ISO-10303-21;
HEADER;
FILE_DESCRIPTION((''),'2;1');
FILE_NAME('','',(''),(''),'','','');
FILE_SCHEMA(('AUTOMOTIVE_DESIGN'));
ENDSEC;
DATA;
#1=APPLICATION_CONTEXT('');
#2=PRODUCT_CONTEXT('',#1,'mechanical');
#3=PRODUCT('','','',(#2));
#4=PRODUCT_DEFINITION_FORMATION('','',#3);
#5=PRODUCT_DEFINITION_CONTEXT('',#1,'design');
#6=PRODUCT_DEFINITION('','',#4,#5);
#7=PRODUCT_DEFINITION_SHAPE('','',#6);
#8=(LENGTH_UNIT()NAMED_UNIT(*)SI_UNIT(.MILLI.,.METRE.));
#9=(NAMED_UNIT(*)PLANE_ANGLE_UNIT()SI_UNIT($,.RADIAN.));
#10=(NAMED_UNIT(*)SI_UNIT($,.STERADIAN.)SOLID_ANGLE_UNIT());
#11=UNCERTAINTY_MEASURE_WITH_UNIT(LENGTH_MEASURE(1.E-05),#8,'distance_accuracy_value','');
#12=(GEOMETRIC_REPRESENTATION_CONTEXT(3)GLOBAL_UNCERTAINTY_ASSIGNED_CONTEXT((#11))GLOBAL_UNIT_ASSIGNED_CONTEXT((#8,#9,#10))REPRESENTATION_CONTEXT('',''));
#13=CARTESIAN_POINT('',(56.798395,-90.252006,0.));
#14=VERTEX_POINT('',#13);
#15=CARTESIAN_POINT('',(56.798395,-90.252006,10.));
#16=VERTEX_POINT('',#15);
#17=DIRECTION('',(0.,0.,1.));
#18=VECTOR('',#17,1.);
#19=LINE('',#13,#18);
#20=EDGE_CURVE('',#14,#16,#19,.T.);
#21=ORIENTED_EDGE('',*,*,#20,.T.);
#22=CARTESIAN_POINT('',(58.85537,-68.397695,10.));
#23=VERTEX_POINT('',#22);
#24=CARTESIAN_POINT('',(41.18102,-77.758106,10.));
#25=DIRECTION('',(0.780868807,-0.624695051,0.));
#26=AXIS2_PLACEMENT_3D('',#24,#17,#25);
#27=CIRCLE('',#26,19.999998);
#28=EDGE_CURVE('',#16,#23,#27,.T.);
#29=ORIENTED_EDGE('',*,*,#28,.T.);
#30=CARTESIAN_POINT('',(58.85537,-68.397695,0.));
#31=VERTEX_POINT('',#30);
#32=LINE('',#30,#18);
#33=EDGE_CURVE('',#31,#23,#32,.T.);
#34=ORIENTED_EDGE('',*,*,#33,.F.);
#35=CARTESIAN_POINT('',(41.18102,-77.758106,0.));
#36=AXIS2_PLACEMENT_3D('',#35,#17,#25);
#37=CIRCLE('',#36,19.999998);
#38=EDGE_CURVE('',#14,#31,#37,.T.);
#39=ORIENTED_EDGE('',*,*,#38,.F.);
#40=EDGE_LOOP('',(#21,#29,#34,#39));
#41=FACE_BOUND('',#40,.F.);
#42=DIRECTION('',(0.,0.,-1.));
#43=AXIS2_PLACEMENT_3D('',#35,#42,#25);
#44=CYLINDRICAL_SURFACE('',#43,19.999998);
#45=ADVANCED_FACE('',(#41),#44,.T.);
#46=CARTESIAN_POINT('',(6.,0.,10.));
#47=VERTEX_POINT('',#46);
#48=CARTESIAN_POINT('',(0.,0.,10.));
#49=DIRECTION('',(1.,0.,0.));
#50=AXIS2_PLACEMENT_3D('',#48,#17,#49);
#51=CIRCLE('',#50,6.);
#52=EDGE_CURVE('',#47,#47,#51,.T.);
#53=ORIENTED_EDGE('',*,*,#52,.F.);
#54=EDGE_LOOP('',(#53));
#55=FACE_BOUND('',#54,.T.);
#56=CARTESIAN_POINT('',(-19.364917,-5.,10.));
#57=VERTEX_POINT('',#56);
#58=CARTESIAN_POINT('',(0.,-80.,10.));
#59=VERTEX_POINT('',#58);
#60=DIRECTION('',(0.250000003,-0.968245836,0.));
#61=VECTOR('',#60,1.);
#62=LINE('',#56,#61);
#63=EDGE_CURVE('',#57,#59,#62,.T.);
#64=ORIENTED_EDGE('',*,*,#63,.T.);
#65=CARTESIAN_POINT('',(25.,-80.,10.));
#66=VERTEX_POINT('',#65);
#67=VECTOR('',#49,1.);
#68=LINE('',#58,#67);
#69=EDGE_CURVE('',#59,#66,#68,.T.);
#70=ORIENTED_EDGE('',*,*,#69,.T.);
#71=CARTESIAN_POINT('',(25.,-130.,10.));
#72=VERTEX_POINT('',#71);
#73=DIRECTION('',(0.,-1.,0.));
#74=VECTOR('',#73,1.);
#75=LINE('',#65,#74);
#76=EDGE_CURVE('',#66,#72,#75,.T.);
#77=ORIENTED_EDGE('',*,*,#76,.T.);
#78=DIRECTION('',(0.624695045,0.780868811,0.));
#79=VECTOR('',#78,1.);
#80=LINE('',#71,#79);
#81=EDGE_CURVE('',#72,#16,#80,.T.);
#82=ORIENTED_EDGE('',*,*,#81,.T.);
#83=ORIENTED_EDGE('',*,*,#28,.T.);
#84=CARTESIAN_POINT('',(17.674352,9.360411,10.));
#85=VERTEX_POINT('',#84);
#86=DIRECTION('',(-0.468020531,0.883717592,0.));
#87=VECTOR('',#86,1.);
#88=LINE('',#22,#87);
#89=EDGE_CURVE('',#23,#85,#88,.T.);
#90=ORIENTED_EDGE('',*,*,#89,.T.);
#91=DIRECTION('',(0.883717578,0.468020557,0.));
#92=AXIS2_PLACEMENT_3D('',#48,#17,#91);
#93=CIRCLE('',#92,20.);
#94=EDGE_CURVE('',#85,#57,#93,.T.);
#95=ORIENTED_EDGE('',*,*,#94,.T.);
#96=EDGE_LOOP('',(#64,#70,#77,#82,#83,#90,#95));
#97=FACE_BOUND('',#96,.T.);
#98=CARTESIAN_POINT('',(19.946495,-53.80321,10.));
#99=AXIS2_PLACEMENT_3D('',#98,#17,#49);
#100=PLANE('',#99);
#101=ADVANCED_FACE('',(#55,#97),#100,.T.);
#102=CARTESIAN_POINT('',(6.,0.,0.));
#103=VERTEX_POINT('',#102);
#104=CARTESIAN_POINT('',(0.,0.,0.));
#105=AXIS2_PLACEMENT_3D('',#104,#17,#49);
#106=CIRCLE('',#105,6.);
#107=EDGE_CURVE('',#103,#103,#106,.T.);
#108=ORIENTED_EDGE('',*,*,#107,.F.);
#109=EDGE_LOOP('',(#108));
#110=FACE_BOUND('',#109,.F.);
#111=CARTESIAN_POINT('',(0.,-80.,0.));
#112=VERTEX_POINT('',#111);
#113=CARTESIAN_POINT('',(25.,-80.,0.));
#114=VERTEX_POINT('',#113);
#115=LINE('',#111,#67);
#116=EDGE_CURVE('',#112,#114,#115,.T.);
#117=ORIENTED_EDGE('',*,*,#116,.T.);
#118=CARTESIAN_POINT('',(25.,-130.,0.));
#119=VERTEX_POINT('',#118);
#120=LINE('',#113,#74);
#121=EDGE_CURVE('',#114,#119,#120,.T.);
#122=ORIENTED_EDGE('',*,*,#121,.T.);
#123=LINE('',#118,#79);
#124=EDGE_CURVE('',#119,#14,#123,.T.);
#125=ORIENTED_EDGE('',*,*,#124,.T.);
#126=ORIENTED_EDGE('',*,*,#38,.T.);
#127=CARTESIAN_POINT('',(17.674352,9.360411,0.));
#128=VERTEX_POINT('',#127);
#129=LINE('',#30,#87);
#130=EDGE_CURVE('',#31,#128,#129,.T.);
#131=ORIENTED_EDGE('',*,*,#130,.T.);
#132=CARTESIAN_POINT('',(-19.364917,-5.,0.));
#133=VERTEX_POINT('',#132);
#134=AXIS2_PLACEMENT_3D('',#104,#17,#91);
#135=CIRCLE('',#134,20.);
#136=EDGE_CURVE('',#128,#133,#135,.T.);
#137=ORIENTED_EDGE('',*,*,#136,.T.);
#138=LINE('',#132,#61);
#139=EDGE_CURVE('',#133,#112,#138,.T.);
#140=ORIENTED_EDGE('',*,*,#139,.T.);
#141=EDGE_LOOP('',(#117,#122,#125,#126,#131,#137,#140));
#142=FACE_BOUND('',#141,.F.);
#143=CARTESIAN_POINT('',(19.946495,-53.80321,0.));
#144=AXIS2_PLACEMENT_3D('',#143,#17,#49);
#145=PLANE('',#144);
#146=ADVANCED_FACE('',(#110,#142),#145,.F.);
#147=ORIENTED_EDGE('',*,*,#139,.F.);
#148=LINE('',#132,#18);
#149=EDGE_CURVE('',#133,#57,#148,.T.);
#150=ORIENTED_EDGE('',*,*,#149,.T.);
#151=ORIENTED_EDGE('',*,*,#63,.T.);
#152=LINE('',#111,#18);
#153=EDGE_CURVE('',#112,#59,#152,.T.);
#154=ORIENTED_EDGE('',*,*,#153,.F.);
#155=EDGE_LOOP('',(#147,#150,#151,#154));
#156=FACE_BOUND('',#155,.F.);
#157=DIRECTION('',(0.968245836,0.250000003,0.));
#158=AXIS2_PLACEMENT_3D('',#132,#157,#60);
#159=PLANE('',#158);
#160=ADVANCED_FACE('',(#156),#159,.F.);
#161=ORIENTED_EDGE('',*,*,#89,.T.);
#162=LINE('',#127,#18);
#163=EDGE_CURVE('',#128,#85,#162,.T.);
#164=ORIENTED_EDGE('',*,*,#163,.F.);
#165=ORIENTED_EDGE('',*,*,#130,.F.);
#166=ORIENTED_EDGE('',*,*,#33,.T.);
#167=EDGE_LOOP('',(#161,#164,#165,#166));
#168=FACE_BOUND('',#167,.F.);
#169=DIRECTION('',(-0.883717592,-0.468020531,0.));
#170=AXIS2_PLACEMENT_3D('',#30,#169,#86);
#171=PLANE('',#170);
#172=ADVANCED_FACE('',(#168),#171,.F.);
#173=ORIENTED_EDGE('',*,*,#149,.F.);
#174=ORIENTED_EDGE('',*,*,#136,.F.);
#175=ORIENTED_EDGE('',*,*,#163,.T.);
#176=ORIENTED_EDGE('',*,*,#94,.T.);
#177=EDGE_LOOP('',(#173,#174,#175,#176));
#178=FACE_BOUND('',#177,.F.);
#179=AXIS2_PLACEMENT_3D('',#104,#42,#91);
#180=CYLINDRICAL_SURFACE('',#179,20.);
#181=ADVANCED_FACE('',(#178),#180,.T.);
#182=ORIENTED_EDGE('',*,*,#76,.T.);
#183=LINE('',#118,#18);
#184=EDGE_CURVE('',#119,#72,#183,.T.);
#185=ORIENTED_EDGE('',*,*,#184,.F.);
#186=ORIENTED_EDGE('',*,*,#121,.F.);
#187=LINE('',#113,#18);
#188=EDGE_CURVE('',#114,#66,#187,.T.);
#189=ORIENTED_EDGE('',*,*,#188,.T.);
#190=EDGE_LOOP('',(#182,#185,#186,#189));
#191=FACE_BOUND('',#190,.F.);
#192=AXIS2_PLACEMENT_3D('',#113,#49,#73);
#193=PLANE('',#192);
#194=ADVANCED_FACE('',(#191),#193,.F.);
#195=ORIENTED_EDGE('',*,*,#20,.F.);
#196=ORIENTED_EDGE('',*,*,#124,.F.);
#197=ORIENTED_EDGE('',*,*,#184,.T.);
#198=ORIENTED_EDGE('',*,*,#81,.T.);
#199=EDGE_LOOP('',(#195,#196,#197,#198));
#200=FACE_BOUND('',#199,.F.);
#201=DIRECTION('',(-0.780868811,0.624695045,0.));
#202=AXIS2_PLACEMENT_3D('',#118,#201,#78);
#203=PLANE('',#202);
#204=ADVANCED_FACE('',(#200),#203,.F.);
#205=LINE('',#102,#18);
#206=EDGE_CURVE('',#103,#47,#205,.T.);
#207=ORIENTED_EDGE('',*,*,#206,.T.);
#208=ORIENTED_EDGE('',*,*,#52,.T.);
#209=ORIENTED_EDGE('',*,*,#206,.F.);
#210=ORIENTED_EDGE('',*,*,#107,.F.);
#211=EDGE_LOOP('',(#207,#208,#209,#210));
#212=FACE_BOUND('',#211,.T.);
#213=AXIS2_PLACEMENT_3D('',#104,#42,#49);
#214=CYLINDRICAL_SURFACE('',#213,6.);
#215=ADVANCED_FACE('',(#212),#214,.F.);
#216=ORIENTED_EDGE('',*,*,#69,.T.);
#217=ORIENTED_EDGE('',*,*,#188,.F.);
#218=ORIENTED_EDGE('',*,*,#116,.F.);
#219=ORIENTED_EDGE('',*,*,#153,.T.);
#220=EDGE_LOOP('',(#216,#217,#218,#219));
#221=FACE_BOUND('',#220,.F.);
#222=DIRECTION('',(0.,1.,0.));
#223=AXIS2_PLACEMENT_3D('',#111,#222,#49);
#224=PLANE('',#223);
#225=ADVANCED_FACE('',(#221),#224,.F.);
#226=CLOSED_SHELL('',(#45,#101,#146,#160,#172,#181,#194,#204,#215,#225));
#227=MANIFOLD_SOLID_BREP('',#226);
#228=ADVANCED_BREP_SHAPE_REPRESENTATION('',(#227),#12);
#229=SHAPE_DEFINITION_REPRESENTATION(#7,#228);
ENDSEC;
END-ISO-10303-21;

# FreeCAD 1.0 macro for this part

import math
import FreeCAD as App
import Part
import Sketcher

V = App.Vector

doc = App.newDocument("Part")
params = doc.addObject("Spreadsheet::Sheet", "Params")
for row, (alias, value) in enumerate([
    ("sketch1_diameter", "12 mm"),
    ("sketch1_radius", "20 mm"),
    ("sketch1_width", "25 mm"),
    ("sketch1_height", "50 mm"),
    ("pad1_length", "10 mm"),
], start=1):
    params.set(f"A{row}", alias)
    params.set(f"B{row}", "=" + value)
    params.setAlias(f"B{row}", alias)

body = doc.addObject("PartDesign::Body", "Body")

# Sketch on XY plane
sketch1 = body.newObject("Sketcher::SketchObject", "Sketch")
sketch1.AttachmentSupport = (doc.getObject("XY_Plane"), [""])
sketch1.MapMode = "FlatFace"
sketch1.addGeometry(Part.LineSegment(V(59, -68, 0), V(18, 9, 0)), False)
sketch1.addGeometry(Part.ArcOfCircle(Part.Circle(V(0, 0, 0), V(0, 0, 1), 20), math.radians(28), math.radians(194)), False)
sketch1.addGeometry(Part.LineSegment(V(-19, -5, 0), V(0, -80, 0)), False)
sketch1.addGeometry(Part.LineSegment(V(0, -80, 0), V(25, -80, 0)), False)
sketch1.addGeometry(Part.LineSegment(V(25, -80, 0), V(25, -130, 0)), False)
sketch1.addGeometry(Part.LineSegment(V(25, -130, 0), V(57, -90, 0)), False)
sketch1.addGeometry(Part.ArcOfCircle(Part.Circle(V(41, -78, 0), V(0, 0, 1), 20), math.radians(-39), math.radians(28)), False)
sketch1.addGeometry(Part.Circle(V(0, 0, 0), V(0, 0, 1), 6), False)
sketch1.addConstraint(Sketcher.Constraint("Tangent", 0, 2, 1, 1))
sketch1.addConstraint(Sketcher.Constraint("Tangent", 1, 2, 2, 1))
sketch1.addConstraint(Sketcher.Constraint("Coincident", 2, 2, 3, 1))
sketch1.addConstraint(Sketcher.Constraint("Coincident", 3, 2, 4, 1))
sketch1.addConstraint(Sketcher.Constraint("Coincident", 4, 2, 5, 1))
sketch1.addConstraint(Sketcher.Constraint("Tangent", 5, 2, 6, 1))
sketch1.addConstraint(Sketcher.Constraint("Tangent", 6, 2, 0, 1))
sketch1.addConstraint(Sketcher.Constraint("Horizontal", 3))
sketch1.addConstraint(Sketcher.Constraint("Vertical", 4))
sketch1.addConstraint(Sketcher.Constraint("Coincident", 1, 3, -1, 1))
sketch1.addConstraint(Sketcher.Constraint("Coincident", 7, 3, -1, 1))
sketch1.addConstraint(Sketcher.Constraint("Equal", 1, 6))
sketch1.addConstraint(Sketcher.Constraint("PointOnObject", 2, 2, -2))
sketch1.addConstraint(Sketcher.Constraint("Diameter", 7, 12.0))
sketch1.addConstraint(Sketcher.Constraint("Radius", 1, 20.0))
sketch1.addConstraint(Sketcher.Constraint("DistanceX", 3, 1, 3, 2, 25.0))
sketch1.addConstraint(Sketcher.Constraint("DistanceY", 4, 2, 4, 1, 50.0))
sketch1.addConstraint(Sketcher.Constraint("DistanceY", 2, 2, -1, 1, 80.0))
sketch1.addConstraint(Sketcher.Constraint("DistanceY", 5, 2, 6, 3, 12.4939))
sketch1.addConstraint(Sketcher.Constraint("Distance", 0, 87.989768))
sketch1.setExpression("Constraints[13]", "Params.sketch1_diameter")
sketch1.setExpression("Constraints[14]", "Params.sketch1_radius")
sketch1.setExpression("Constraints[15]", "Params.sketch1_width")
sketch1.setExpression("Constraints[16]", "Params.sketch1_height")
pad1 = body.newObject("PartDesign::Pad", "Pad")
pad1.Profile = sketch1
pad1.setExpression("Length", "Params.pad1_length")

doc.recompute()
